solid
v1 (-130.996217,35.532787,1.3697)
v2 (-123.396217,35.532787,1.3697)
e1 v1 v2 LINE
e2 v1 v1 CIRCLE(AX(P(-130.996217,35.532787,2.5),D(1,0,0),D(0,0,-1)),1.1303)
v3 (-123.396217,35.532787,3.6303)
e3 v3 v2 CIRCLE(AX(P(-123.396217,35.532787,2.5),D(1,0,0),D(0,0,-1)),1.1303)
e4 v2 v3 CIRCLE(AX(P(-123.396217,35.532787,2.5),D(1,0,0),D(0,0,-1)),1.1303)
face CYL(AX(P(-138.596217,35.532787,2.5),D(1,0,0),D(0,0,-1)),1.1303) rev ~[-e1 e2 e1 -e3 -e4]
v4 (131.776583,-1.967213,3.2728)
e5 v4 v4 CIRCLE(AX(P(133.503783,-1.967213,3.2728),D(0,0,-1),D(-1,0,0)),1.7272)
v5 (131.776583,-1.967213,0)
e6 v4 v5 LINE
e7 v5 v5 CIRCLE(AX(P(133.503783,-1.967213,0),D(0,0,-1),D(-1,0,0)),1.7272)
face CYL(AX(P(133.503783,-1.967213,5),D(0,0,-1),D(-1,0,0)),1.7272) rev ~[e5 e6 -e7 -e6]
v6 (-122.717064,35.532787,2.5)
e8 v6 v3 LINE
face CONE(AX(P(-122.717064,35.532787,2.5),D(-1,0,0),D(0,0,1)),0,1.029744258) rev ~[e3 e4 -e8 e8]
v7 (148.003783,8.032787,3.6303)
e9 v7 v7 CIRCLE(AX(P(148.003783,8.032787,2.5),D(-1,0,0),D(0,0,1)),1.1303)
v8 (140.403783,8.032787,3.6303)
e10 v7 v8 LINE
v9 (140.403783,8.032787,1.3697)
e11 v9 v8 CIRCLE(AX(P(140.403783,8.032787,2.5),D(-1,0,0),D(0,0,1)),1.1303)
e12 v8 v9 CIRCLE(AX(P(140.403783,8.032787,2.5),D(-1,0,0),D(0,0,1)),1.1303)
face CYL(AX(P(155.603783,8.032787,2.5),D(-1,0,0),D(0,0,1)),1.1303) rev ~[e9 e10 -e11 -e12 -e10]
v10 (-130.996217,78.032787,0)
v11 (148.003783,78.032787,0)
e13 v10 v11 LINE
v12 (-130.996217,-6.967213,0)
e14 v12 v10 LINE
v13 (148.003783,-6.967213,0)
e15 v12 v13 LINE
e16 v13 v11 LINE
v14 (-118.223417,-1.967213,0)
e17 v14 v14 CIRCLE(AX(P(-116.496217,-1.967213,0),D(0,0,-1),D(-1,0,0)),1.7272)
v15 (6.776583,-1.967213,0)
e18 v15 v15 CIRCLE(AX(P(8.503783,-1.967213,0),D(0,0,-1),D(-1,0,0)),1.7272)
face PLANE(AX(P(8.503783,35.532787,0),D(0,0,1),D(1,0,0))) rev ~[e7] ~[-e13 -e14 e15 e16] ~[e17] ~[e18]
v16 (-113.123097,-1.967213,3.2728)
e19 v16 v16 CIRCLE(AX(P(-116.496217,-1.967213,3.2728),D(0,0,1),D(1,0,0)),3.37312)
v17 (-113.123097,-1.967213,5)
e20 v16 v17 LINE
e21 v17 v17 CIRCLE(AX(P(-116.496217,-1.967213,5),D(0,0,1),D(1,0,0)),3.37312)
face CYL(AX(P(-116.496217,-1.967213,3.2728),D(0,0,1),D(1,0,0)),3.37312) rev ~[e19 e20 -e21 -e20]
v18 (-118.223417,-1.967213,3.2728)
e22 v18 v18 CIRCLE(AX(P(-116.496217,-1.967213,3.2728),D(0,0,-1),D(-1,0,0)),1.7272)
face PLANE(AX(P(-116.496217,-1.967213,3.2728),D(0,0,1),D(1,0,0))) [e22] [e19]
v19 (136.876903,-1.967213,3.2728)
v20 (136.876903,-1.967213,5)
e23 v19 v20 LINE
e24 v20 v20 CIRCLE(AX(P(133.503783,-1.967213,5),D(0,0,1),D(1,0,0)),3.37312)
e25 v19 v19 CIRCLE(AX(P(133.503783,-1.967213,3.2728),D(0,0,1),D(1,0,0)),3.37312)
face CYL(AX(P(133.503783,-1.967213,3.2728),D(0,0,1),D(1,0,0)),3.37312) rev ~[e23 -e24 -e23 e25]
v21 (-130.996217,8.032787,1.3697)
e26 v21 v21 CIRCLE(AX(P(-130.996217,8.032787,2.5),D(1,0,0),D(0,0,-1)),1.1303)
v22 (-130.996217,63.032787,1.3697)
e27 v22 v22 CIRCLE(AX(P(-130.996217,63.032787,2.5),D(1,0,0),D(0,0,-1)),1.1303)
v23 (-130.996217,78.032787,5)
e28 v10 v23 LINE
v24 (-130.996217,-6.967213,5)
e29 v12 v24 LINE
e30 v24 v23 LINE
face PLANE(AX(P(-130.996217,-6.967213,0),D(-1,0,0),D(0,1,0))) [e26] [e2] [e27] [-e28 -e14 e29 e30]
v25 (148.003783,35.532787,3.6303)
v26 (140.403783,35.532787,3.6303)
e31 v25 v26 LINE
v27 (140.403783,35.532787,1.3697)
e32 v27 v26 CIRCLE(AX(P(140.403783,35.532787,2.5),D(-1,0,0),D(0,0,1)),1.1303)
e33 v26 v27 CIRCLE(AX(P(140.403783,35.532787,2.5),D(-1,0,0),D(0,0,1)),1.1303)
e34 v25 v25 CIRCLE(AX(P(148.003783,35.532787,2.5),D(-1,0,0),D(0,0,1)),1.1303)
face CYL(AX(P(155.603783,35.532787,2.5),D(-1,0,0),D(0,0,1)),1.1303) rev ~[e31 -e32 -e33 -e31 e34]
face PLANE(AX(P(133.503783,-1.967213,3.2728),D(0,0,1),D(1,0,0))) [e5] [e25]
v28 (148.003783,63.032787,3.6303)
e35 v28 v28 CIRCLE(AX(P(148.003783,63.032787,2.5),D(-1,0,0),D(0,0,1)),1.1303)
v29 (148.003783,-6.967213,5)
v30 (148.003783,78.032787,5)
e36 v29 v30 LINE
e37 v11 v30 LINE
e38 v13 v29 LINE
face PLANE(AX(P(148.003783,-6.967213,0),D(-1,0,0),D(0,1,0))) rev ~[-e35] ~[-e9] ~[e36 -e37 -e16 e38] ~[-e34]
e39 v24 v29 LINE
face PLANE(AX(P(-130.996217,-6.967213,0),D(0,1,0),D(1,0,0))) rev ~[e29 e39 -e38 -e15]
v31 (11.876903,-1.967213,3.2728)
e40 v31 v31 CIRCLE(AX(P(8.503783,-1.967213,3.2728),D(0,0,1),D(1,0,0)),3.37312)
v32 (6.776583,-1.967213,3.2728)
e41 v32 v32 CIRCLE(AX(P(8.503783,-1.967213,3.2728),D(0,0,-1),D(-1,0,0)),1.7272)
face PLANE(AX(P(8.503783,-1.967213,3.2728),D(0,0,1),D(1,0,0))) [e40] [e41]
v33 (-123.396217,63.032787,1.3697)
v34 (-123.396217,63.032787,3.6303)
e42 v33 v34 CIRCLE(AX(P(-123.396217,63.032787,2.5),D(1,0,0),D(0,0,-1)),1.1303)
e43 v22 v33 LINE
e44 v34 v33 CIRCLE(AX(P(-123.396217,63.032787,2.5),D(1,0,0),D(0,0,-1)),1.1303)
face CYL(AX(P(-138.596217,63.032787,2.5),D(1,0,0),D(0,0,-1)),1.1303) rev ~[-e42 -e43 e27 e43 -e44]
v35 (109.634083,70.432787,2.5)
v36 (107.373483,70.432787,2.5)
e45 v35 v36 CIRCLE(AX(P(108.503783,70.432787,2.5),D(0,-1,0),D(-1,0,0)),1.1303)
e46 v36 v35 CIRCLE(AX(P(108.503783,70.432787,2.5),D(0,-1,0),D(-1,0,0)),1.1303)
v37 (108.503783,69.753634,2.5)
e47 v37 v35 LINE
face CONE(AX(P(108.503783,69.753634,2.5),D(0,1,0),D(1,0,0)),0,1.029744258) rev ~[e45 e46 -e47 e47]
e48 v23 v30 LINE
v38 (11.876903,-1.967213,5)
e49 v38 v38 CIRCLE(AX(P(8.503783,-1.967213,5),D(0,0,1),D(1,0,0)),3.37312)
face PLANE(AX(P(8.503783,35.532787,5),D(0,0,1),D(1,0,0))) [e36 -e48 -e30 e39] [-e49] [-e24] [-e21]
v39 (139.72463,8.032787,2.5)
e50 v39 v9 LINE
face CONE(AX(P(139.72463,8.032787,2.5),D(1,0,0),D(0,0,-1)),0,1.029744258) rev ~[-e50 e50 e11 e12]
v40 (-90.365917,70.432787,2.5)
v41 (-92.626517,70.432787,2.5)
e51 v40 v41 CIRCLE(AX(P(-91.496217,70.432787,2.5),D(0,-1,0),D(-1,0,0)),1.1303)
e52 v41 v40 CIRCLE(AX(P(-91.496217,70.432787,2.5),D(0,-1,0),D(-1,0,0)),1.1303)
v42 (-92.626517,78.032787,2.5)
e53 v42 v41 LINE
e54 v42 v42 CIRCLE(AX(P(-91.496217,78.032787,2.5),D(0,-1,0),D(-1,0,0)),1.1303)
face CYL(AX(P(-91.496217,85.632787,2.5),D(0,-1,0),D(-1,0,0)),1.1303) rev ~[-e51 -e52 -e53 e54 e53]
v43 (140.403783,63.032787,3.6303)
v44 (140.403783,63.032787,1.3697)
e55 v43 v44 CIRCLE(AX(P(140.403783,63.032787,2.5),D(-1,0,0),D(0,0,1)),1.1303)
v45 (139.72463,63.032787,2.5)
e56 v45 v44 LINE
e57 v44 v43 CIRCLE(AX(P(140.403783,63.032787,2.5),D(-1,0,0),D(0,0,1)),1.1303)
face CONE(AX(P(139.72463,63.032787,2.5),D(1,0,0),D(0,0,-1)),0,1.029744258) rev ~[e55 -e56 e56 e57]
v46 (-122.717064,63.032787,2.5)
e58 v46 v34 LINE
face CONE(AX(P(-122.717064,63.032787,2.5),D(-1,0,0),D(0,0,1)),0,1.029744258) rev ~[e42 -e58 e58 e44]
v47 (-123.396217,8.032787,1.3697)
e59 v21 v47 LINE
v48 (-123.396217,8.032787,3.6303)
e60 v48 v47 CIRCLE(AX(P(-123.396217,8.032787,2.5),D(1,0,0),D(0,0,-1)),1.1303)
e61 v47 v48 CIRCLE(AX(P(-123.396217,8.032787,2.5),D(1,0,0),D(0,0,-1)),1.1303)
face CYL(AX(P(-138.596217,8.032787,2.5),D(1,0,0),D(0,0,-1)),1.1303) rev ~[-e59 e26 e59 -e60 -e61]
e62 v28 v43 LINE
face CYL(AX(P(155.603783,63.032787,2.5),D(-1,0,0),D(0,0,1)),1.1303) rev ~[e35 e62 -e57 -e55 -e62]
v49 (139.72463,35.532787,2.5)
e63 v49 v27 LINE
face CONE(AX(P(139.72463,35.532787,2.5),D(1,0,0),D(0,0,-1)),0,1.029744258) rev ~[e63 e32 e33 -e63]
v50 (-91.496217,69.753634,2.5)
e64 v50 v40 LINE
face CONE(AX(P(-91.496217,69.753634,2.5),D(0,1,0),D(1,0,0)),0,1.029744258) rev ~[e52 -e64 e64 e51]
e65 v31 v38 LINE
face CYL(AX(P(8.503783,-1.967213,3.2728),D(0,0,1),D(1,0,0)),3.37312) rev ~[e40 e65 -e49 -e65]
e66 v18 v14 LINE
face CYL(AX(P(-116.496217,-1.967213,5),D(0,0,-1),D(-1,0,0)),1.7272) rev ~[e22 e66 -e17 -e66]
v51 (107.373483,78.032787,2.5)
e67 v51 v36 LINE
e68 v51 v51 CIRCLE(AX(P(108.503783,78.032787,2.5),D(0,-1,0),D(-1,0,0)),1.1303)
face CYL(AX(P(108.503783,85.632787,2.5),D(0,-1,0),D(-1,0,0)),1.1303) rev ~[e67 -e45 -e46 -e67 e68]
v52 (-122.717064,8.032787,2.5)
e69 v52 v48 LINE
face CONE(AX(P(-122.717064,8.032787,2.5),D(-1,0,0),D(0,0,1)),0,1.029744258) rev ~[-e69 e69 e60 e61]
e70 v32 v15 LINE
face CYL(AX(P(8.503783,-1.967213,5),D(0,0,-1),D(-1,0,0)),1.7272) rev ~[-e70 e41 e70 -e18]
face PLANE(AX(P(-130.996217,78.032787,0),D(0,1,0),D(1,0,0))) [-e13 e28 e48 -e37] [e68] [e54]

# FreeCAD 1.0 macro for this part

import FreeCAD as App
import Part
import Sketcher

V = App.Vector
Q = App.Units.Quantity


def add_polygon(sketch, points):
    """Adds a closed chain of lines whose ends are joined by coincident constraints."""
    first, n = sketch.GeometryCount, len(points)
    for a, b in zip(points, points[1:] + points[:1]):
        sketch.addGeometry(Part.LineSegment(App.Vector(*a, 0), App.Vector(*b, 0)), False)
    for i in range(n):
        sketch.addConstraint(Sketcher.Constraint("Coincident", first + i, 2, first + (i + 1) % n, 1))

doc = App.newDocument("Part")
body = doc.addObject("PartDesign::Body", "Body")

sketch1 = doc.addObject("Sketcher::SketchObject", "Sketch")
body.addObject(sketch1)
sketch1.AttachmentSupport = (doc.XY_Plane, [""])
sketch1.MapMode = "FlatFace"
add_polygon(sketch1, [(-130.996217, 78.032787), (-130.996217, -6.967213), (148.003783, -6.967213), (148.003783, 78.032787)])
sketch1.addConstraint([
    Sketcher.Constraint("Vertical", 0),
    Sketcher.Constraint("Horizontal", 1),
    Sketcher.Constraint("Vertical", 2),
    Sketcher.Constraint("Horizontal", 3),
    Sketcher.Constraint("DistanceX", 1, 1, 1, 2, Q("279 mm")),
    Sketcher.Constraint("DistanceY", 0, 2, 0, 1, Q("85 mm")),
    Sketcher.Constraint("DistanceX", 0, 2, -1, 1, Q("130.996217 mm")),
    Sketcher.Constraint("DistanceY", 0, 2, -1, 1, Q("6.967213 mm")),
])
pad1 = doc.addObject("PartDesign::Pad", "Pad")
body.addObject(pad1)
pad1.Profile = sketch1
pad1.Length = 5

sketch2 = doc.addObject("Sketcher::SketchObject", "Sketch001")
body.addObject(sketch2)
sketch2.AttachmentSupport = (doc.XY_Plane, [""])
sketch2.MapMode = "FlatFace"
sketch2.AttachmentOffset = App.Placement(V(0, 0, 5), App.Rotation())
sketch2.addGeometry([
    Part.Circle(V(-116.496217, -1.967213, 0), V(0, 0, 1), 1.7272),
    Part.Circle(V(8.503783, -1.967213, 0), V(0, 0, 1), 1.7272),
    Part.Circle(V(133.503783, -1.967213, 0), V(0, 0, 1), 1.7272),
], False)
sketch2.addConstraint([
    Sketcher.Constraint("Equal", 0, 1),
    Sketcher.Constraint("Equal", 1, 2),
    Sketcher.Constraint("Horizontal", 0, 3, 1, 3),
    Sketcher.Constraint("Horizontal", 1, 3, 2, 3),
    Sketcher.Constraint("DistanceX", 0, 3, 1, 3, Q("125 mm")),
    Sketcher.Constraint("DistanceX", 1, 3, 2, 3, Q("125 mm")),
    Sketcher.Constraint("Diameter", 0, Q("3.4544 mm")),
    Sketcher.Constraint("DistanceX", 0, 3, -1, 1, Q("116.496217 mm")),
    Sketcher.Constraint("DistanceY", 0, 3, -1, 1, Q("1.967213 mm")),
])
doc.recompute()
hole = doc.addObject("PartDesign::Hole", "Hole")
body.addObject(hole)
hole.Profile = sketch2
hole.ThreadType = "None"
hole.Diameter = 3.4544
hole.DepthType = "ThroughAll"
hole.HoleCutType = "Counterbore"
hole.HoleCutDiameter = 6.74624
hole.HoleCutDepth = 1.7272

sketch3 = doc.addObject("Sketcher::SketchObject", "Sketch002")
body.addObject(sketch3)
sketch3.AttachmentSupport = (doc.YZ_Plane, [""])
sketch3.MapMode = "FlatFace"
sketch3.AttachmentOffset = App.Placement(V(0, 0, -130.996217), App.Rotation())
sketch3.addGeometry([
    Part.Circle(V(63.032787, 2.5, 0), V(0, 0, 1), 1.1303),
    Part.Circle(V(35.532787, 2.5, 0), V(0, 0, 1), 1.1303),
    Part.Circle(V(8.032787, 2.5, 0), V(0, 0, 1), 1.1303),
], False)
sketch3.addConstraint([
    Sketcher.Constraint("Equal", 0, 1),
    Sketcher.Constraint("Equal", 1, 2),
    Sketcher.Constraint("Horizontal", 0, 3, 1, 3),
    Sketcher.Constraint("Horizontal", 1, 3, 2, 3),
    Sketcher.Constraint("DistanceX", 2, 3, 0, 3, Q("55 mm")),
    Sketcher.Constraint("Diameter", 0, Q("2.2606 mm")),
    Sketcher.Constraint("DistanceY", -1, 1, 0, 3, Q("2.5 mm")),
    Sketcher.Constraint("DistanceX", 1, 3, 0, 3, Q("27.5 mm")),
    Sketcher.Constraint("DistanceX", -1, 1, 0, 3, Q("63.032787 mm")),
])
doc.recompute()
hole2 = doc.addObject("PartDesign::Hole", "Hole001")
body.addObject(hole2)
hole2.Profile = sketch3
hole2.ThreadType = "None"
hole2.Diameter = 2.2606
hole2.DepthType = "Dimension"
hole2.Depth = 7.6
hole2.DrillPoint = "Angled"
hole2.DrillPointAngle = 118
hole2.Reversed = True

sketch4 = doc.addObject("Sketcher::SketchObject", "Sketch003")
body.addObject(sketch4)
sketch4.AttachmentSupport = (doc.YZ_Plane, [""])
sketch4.MapMode = "FlatFace"
sketch4.AttachmentOffset = App.Placement(V(0, 0, 148.003783), App.Rotation())
sketch4.addGeometry([
    Part.Circle(V(63.032787, 2.5, 0), V(0, 0, 1), 1.1303),
    Part.Circle(V(35.532787, 2.5, 0), V(0, 0, 1), 1.1303),
    Part.Circle(V(8.032787, 2.5, 0), V(0, 0, 1), 1.1303),
], False)
sketch4.addConstraint([
    Sketcher.Constraint("Equal", 0, 1),
    Sketcher.Constraint("Equal", 1, 2),
    Sketcher.Constraint("Horizontal", 0, 3, 1, 3),
    Sketcher.Constraint("Horizontal", 1, 3, 2, 3),
    Sketcher.Constraint("DistanceX", 2, 3, 0, 3, Q("55 mm")),
    Sketcher.Constraint("Diameter", 0, Q("2.2606 mm")),
    Sketcher.Constraint("DistanceY", -1, 1, 0, 3, Q("2.5 mm")),
    Sketcher.Constraint("DistanceX", 1, 3, 0, 3, Q("27.5 mm")),
    Sketcher.Constraint("DistanceX", -1, 1, 0, 3, Q("63.032787 mm")),
])
doc.recompute()
hole3 = doc.addObject("PartDesign::Hole", "Hole002")
body.addObject(hole3)
hole3.Profile = sketch4
hole3.ThreadType = "None"
hole3.Diameter = 2.2606
hole3.DepthType = "Dimension"
hole3.Depth = 7.6
hole3.DrillPoint = "Angled"
hole3.DrillPointAngle = 118

sketch5 = doc.addObject("Sketcher::SketchObject", "Sketch004")
body.addObject(sketch5)
sketch5.AttachmentSupport = (doc.XZ_Plane, [""])
sketch5.MapMode = "FlatFace"
sketch5.AttachmentOffset = App.Placement(V(0, 0, -78.032787), App.Rotation())
sketch5.addGeometry([
    Part.Circle(V(-91.496217, 2.5, 0), V(0, 0, 1), 1.1303),
    Part.Circle(V(108.503783, 2.5, 0), V(0, 0, 1), 1.1303),
], False)
sketch5.addConstraint([
    Sketcher.Constraint("Equal", 0, 1),
    Sketcher.Constraint("Horizontal", 0, 3, 1, 3),
    Sketcher.Constraint("DistanceX", 0, 3, 1, 3, Q("200 mm")),
    Sketcher.Constraint("Diameter", 0, Q("2.2606 mm")),
    Sketcher.Constraint("DistanceY", -1, 1, 0, 3, Q("2.5 mm")),
    Sketcher.Constraint("DistanceX", 0, 3, -1, 1, Q("91.496217 mm")),
])
doc.recompute()
hole4 = doc.addObject("PartDesign::Hole", "Hole003")
body.addObject(hole4)
hole4.Profile = sketch5
hole4.ThreadType = "None"
hole4.Diameter = 2.2606
hole4.DepthType = "Dimension"
hole4.Depth = 7.6
hole4.DrillPoint = "Angled"
hole4.DrillPointAngle = 118
hole4.Reversed = True

doc.recompute()
